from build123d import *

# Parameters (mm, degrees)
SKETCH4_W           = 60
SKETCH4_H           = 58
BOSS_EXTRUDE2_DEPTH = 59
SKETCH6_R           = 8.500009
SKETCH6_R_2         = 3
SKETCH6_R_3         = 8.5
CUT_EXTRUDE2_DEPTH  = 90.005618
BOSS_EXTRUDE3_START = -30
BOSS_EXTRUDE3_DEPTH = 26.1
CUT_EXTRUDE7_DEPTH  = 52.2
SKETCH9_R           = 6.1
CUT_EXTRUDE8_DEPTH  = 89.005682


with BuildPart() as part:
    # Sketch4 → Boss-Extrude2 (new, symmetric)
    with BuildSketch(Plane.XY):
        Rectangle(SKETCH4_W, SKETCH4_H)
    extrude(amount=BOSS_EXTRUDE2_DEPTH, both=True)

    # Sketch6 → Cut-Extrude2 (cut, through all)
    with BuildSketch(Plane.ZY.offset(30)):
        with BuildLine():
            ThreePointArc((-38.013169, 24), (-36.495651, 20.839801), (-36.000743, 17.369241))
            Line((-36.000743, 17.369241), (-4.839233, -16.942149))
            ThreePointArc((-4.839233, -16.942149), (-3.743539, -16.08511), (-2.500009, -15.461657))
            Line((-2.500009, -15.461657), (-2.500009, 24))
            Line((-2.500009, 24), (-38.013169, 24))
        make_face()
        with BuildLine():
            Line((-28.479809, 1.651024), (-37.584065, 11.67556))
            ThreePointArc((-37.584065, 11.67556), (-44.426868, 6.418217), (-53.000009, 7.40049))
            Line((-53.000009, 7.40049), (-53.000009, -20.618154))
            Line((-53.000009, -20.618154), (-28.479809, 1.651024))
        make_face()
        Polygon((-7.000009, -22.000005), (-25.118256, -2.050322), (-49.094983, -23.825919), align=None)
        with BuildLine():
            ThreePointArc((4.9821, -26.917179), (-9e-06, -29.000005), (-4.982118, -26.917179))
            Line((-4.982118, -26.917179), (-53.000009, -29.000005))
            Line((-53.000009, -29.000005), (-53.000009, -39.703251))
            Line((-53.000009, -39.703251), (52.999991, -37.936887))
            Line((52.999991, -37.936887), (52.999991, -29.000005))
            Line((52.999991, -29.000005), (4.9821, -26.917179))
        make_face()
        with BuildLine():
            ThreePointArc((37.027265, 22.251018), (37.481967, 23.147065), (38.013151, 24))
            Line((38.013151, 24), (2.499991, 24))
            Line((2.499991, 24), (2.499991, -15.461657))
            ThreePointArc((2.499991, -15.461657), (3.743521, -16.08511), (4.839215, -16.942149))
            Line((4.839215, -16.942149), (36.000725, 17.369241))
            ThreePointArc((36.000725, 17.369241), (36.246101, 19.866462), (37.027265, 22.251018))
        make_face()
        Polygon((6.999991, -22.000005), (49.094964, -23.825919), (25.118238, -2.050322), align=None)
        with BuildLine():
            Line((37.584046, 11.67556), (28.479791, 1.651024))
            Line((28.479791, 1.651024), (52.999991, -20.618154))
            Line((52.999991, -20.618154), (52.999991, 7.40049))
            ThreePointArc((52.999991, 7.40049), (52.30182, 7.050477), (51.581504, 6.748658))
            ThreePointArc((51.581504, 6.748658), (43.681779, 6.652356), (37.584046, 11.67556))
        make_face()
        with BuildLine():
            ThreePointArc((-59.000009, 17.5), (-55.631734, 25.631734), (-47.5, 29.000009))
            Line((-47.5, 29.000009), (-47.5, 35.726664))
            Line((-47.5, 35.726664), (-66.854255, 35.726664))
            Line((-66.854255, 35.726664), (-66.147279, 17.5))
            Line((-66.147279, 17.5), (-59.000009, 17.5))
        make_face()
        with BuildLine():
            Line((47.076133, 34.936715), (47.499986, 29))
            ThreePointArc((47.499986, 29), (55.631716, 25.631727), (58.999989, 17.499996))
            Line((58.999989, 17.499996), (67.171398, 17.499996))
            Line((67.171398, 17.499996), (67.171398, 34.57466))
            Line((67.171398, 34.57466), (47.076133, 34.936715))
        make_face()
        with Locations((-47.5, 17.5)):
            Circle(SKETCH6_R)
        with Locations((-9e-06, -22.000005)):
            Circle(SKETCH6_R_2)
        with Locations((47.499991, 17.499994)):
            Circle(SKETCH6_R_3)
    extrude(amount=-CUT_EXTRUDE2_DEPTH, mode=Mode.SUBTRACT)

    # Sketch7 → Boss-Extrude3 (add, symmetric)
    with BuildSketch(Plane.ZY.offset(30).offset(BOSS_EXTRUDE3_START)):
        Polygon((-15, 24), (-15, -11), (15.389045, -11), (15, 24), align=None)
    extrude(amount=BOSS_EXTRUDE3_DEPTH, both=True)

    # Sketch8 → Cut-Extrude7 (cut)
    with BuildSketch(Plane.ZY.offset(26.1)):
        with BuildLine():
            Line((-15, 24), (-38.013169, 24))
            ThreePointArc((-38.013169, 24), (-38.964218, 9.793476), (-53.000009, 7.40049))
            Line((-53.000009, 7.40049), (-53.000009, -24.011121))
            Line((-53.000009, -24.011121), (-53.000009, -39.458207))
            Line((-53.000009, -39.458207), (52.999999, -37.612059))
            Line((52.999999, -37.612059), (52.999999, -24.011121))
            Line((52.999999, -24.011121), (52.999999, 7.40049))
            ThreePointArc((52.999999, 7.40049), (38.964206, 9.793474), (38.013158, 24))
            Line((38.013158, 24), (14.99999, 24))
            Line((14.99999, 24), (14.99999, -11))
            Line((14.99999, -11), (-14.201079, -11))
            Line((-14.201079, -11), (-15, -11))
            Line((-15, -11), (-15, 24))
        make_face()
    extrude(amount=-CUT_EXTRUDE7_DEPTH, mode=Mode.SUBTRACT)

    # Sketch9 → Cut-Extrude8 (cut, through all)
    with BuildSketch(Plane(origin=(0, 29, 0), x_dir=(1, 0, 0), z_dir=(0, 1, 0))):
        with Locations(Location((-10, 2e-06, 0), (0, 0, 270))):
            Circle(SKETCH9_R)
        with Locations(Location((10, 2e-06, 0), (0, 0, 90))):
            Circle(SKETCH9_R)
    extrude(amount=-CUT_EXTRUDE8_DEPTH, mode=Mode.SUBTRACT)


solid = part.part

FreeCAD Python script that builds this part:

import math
import FreeCAD as App
import Part
import Sketcher
from FreeCAD import Vector
Q = App.Units.Quantity


def add_polygon(sketch, points):
    """Adds a closed chain of lines whose ends are joined by coincident constraints."""
    first, n = sketch.GeometryCount, len(points)
    for a, b in zip(points, points[1:] + points[:1]):
        sketch.addGeometry(Part.LineSegment(App.Vector(*a, 0), App.Vector(*b, 0)), False)
    for i in range(n):
        sketch.addConstraint(Sketcher.Constraint("Coincident", first + i, 2, first + (i + 1) % n, 1))

doc = App.newDocument("Part")
params = doc.addObject("Spreadsheet::Sheet", "Params")
for row, (alias, value) in enumerate([
    ("sketch1_width", "60 mm"),
    ("sketch1_height", "58 mm"),
    ("pad1_length", "118 mm"),
    ("sketch2_diameter", "6 mm"),
    ("sketch2_diameter2", "17 mm"),
    ("sketch2_radius", "11.499999 mm"),
    ("sketch2_radius2", "11.500002 mm"),
    ("sketch2_radius3", "11.499998 mm"),
    ("sketch3_width", "35 mm"),
    ("sketch3_height", "30 mm"),
    ("pad2_length", "52.2 mm"),
    ("sketch4_width", "35 mm"),
    ("pocket2_length", "52.2 mm"),
    ("sketch5_diameter", "12.2 mm"),
], start=1):
    params.set(f"A{row}", alias)
    params.set(f"B{row}", "=" + value)
    params.setAlias(f"B{row}", alias)

body = doc.addObject("PartDesign::Body", "Body")

# Sketch on XY plane
sketch1 = body.newObject("Sketcher::SketchObject", "Sketch")
sketch1.AttachmentSupport = (doc.getObject("XY_Plane"), [""])
sketch1.MapMode = "FlatFace"
add_polygon(sketch1, [(-30, 29), (-30, -29), (30, -29), (30, 29)])  # lines 0-3
sketch1.addConstraint([
    Sketcher.Constraint("Vertical", 0),
    Sketcher.Constraint("Horizontal", 1),
    Sketcher.Constraint("Vertical", 2),
    Sketcher.Constraint("Horizontal", 3),
    Sketcher.Constraint("Symmetric", 0, 2, 2, 2, -1, 1),
    Sketcher.Constraint("DistanceX", 1, 1, 1, 2, Q("60 mm")),
    Sketcher.Constraint("DistanceY", 0, 2, 0, 1, Q("58 mm")),
])
sketch1.setExpression("Constraints[9]", "Params.sketch1_width")
sketch1.setExpression("Constraints[10]", "Params.sketch1_height")
pad1 = body.newObject("PartDesign::Pad", "Pad")
pad1.Profile = sketch1
pad1.setExpression("Length", "Params.pad1_length")
pad1.Midplane = True

# Sketch on YZ plane
sketch2 = body.newObject("Sketcher::SketchObject", "Sketch001")
sketch2.AttachmentSupport = (doc.getObject("YZ_Plane"), [""])
sketch2.MapMode = "FlatFace"
sketch2.AttachmentOffset = App.Placement(Vector(0, 0, -30), App.Rotation())
sketch2.addGeometry(Part.ArcOfCircle(Part.Circle(Vector(17.499992, -47.500015, 0), Vector(0, 0, 1), 11.500016), math.radians(55.582615), math.radians(90.651445)), False)  # 0
sketch2.addGeometry(Part.LineSegment(Vector(17.369241, -36.000743, 0), Vector(-16.942149, -4.839233, 0)), False)  # 1
sketch2.addGeometry(Part.ArcOfCircle(Part.Circle(Vector(-21.999992, -0.000018, 0), Vector(0, 0, 1), 6.999984), math.radians(-43.734533), math.radians(-20.924806)), False)  # 2
sketch2.addGeometry(Part.LineSegment(Vector(-15.461657, -2.500009, 0), Vector(24, -2.500009, 0)), False)  # 3
sketch2.addGeometry(Part.LineSegment(Vector(24, -2.500009, 0), Vector(24, -38.013169, 0)), False)  # 4
sketch2.addGeometry(Part.LineSegment(Vector(1.651024, -28.479809, 0), Vector(11.67556, -37.584065, 0)), False)  # 5
sketch2.addGeometry(Part.ArcOfCircle(Part.Circle(Vector(17.499994, -47.500009, 0), Vector(0, 0, 1), 11.499999), math.radians(120.429154), math.radians(208.571879)), False)  # 6
sketch2.addGeometry(Part.LineSegment(Vector(7.40049, -53.000009, 0), Vector(-20.618154, -53.000009, 0)), False)  # 7
sketch2.addGeometry(Part.LineSegment(Vector(-20.618154, -53.000009, 0), Vector(1.651024, -28.479809, 0)), False)  # 8
add_polygon(sketch2, [(-22.000005, -7.000009), (-2.050322, -25.118256), (-23.825919, -49.094983)])  # lines 9-11
sketch2.addGeometry(Part.ArcOfCircle(Part.Circle(Vector(-22.000003, -0.000009, 0), Vector(0, 0, 1), 7.000002), math.radians(134.624184), math.radians(225.375816)), False)  # 12
sketch2.addGeometry(Part.LineSegment(Vector(-26.917179, -4.982118, 0), Vector(-29.000005, -53.000009, 0)), False)  # 13
sketch2.addGeometry(Part.LineSegment(Vector(-29.000005, -53.000009, 0), Vector(-39.703251, -53.000009, 0)), False)  # 14
sketch2.addGeometry(Part.LineSegment(Vector(-39.703251, -53.000009, 0), Vector(-37.936887, 52.999991, 0)), False)  # 15
sketch2.addGeometry(Part.LineSegment(Vector(-37.936887, 52.999991, 0), Vector(-29.000005, 52.999991, 0)), False)  # 16
sketch2.addGeometry(Part.LineSegment(Vector(-29.000005, 52.999991, 0), Vector(-26.917179, 4.9821, 0)), False)  # 17
sketch2.addGeometry(Part.ArcOfCircle(Part.Circle(Vector(17.499996, 47.499983, 0), Vector(0, 0, 1), 11.500002), math.radians(-65.598248), math.radians(-55.582593)), False)  # 18
sketch2.addGeometry(Part.LineSegment(Vector(24, 38.013151, 0), Vector(24, 2.499991, 0)), False)  # 19
sketch2.addGeometry(Part.LineSegment(Vector(24, 2.499991, 0), Vector(-15.461657, 2.499991, 0)), False)  # 20
sketch2.addGeometry(Part.ArcOfCircle(Part.Circle(Vector(-21.999992, 0, 0), Vector(0, 0, 1), 6.999984), math.radians(20.924806), math.radians(43.734533)), False)  # 21
sketch2.addGeometry(Part.LineSegment(Vector(-16.942149, 4.839215, 0), Vector(17.369241, 36.000725, 0)), False)  # 22
sketch2.addGeometry(Part.ArcOfCircle(Part.Circle(Vector(17.499992, 47.500002, 0), Vector(0, 0, 1), 11.50002), math.radians(-90.651447), math.radians(-65.598268)), False)  # 23
add_polygon(sketch2, [(-22.000005, 6.999991), (-23.825919, 49.094964), (-2.050322, 25.118238)])  # lines 24-26
sketch2.addGeometry(Part.LineSegment(Vector(11.67556, 37.584046, 0), Vector(1.651024, 28.479791, 0)), False)  # 27
sketch2.addGeometry(Part.LineSegment(Vector(1.651024, 28.479791, 0), Vector(-20.618154, 52.999991, 0)), False)  # 28
sketch2.addGeometry(Part.LineSegment(Vector(-20.618154, 52.999991, 0), Vector(7.40049, 52.999991, 0)), False)  # 29
sketch2.addGeometry(Part.ArcOfCircle(Part.Circle(Vector(17.500172, 47.499912, 0), Vector(0, 0, 1), 11.500193), math.radians(151.428196), math.radians(159.211759)), False)  # 30
sketch2.addGeometry(Part.ArcOfCircle(Part.Circle(Vector(17.499993, 47.49999, 0), Vector(0, 0, 1), 11.499998), math.radians(159.211806), math.radians(239.570851)), False)  # 31
sketch2.addGeometry(Part.ArcOfCircle(Part.Circle(Vector(17.499999, -47.499999, 0), Vector(0, 0, 1), 11.50001), math.radians(-89.999994), math.radians(-0.000006)), False)  # 32
sketch2.addGeometry(Part.LineSegment(Vector(29.000009, -47.5, 0), Vector(35.726664, -47.5, 0)), False)  # 33
sketch2.addGeometry(Part.LineSegment(Vector(35.726664, -47.5, 0), Vector(35.726664, -66.854255, 0)), False)  # 34
sketch2.addGeometry(Part.LineSegment(Vector(35.726664, -66.854255, 0), Vector(17.5, -66.147279, 0)), False)  # 35
sketch2.addGeometry(Part.LineSegment(Vector(17.5, -66.147279, 0), Vector(17.5, -59.000009, 0)), False)  # 36
sketch2.addGeometry(Part.LineSegment(Vector(34.936715, 47.076133, 0), Vector(29, 47.499986, 0)), False)  # 37
sketch2.addGeometry(Part.ArcOfCircle(Part.Circle(Vector(17.499997, 47.499986, 0), Vector(0, 0, 1), 11.500003), math.radians(0.000002), math.radians(90.000003)), False)  # 38
sketch2.addGeometry(Part.LineSegment(Vector(17.499996, 58.999989, 0), Vector(17.499996, 67.171398, 0)), False)  # 39
sketch2.addGeometry(Part.LineSegment(Vector(17.499996, 67.171398, 0), Vector(34.57466, 67.171398, 0)), False)  # 40
sketch2.addGeometry(Part.LineSegment(Vector(34.57466, 67.171398, 0), Vector(34.936715, 47.076133, 0)), False)  # 41
sketch2.addGeometry(Part.Circle(Vector(17.5, -47.5, 0), Vector(0, 0, 1), 8.500009), False)  # 42
sketch2.addGeometry(Part.Circle(Vector(-22.000005, -0.000009, 0), Vector(0, 0, 1), 3), False)  # 43
sketch2.addGeometry(Part.Circle(Vector(17.499994, 47.499991, 0), Vector(0, 0, 1), 8.5), False)  # 44
sketch2.addConstraint([
    Sketcher.Constraint("Coincident", 0, 2, 1, 1),
    Sketcher.Constraint("Coincident", 1, 2, 2, 1),
    Sketcher.Constraint("Coincident", 2, 2, 3, 1),
    Sketcher.Constraint("Coincident", 3, 2, 4, 1),
    Sketcher.Constraint("Coincident", 4, 2, 0, 1),
    Sketcher.Constraint("Coincident", 5, 2, 6, 1),
    Sketcher.Constraint("Coincident", 6, 2, 7, 1),
    Sketcher.Constraint("Coincident", 7, 2, 8, 1),
    Sketcher.Constraint("Coincident", 8, 2, 5, 1),
    Sketcher.Constraint("Coincident", 12, 2, 13, 1),
    Sketcher.Constraint("Coincident", 13, 2, 14, 1),
    Sketcher.Constraint("Coincident", 14, 2, 15, 1),
    Sketcher.Constraint("Coincident", 15, 2, 16, 1),
    Sketcher.Constraint("Coincident", 16, 2, 17, 1),
    Sketcher.Constraint("Coincident", 17, 2, 12, 1),
    Sketcher.Constraint("Coincident", 18, 2, 19, 1),
    Sketcher.Constraint("Coincident", 19, 2, 20, 1),
    Sketcher.Constraint("Coincident", 20, 2, 21, 1),
    Sketcher.Constraint("Coincident", 21, 2, 22, 1),
    Sketcher.Constraint("Coincident", 22, 2, 23, 1),
    Sketcher.Constraint("Coincident", 23, 2, 18, 1),
    Sketcher.Constraint("Coincident", 27, 2, 28, 1),
    Sketcher.Constraint("Coincident", 28, 2, 29, 1),
    Sketcher.Constraint("Coincident", 29, 2, 30, 1),
    Sketcher.Constraint("Coincident", 30, 2, 31, 1),
    Sketcher.Constraint("Coincident", 31, 2, 27, 1),
    Sketcher.Constraint("Coincident", 32, 2, 33, 1),
    Sketcher.Constraint("Coincident", 33, 2, 34, 1),
    Sketcher.Constraint("Coincident", 34, 2, 35, 1),
    Sketcher.Constraint("Coincident", 35, 2, 36, 1),
    Sketcher.Constraint("Coincident", 36, 2, 32, 1),
    Sketcher.Constraint("Coincident", 37, 2, 38, 1),
    Sketcher.Constraint("Coincident", 38, 2, 39, 1),
    Sketcher.Constraint("Coincident", 39, 2, 40, 1),
    Sketcher.Constraint("Coincident", 40, 2, 41, 1),
    Sketcher.Constraint("Coincident", 41, 2, 37, 1),
    Sketcher.Constraint("Horizontal", 3),
    Sketcher.Constraint("Vertical", 4),
    Sketcher.Constraint("Horizontal", 7),
    Sketcher.Constraint("Horizontal", 14),
    Sketcher.Constraint("Horizontal", 16),
    Sketcher.Constraint("Vertical", 19),
    Sketcher.Constraint("Horizontal", 20),
    Sketcher.Constraint("Horizontal", 29),
    Sketcher.Constraint("Horizontal", 33),
    Sketcher.Constraint("Vertical", 34),
    Sketcher.Constraint("Vertical", 36),
    Sketcher.Constraint("Vertical", 39),
    Sketcher.Constraint("Horizontal", 40),
    Sketcher.Constraint("Coincident", 6, 3, 0, 3),
    Sketcher.Constraint("Coincident", 31, 3, 18, 3),
    Sketcher.Constraint("Coincident", 38, 3, 18, 3),
    Sketcher.Constraint("Coincident", 42, 3, 32, 3),
    Sketcher.Constraint("Coincident", 43, 3, 12, 3),
    Sketcher.Constraint("Coincident", 44, 3, 18, 3),
    Sketcher.Constraint("PointOnObject", 21, 3, -1),
    Sketcher.Constraint("Diameter", 43, Q("6 mm")),
    Sketcher.Constraint("Diameter", 44, Q("17 mm")),
    Sketcher.Constraint("Radius", 6, Q("11.499999 mm")),
    Sketcher.Constraint("Radius", 18, Q("11.500002 mm")),
    Sketcher.Constraint("Radius", 31, Q("11.499998 mm")),
    Sketcher.Constraint("DistanceX", -1, 1, 3, 2, Q("24 mm")),
    Sketcher.Constraint("DistanceX", -1, 1, 18, 2, Q("24 mm")),
    Sketcher.Constraint("DistanceX", -1, 1, 37, 2, Q("29 mm")),
    Sketcher.Constraint("DistanceY", 0, 3, 18, 3, Q("94.999999 mm")),
    Sketcher.Constraint("DistanceY", 11, 2, 43, 3, Q("7 mm")),
    Sketcher.Constraint("DistanceY", 43, 3, 15, 2, Q("53 mm")),
    Sketcher.Constraint("DistanceY", 3, 2, 19, 2, Q("5 mm")),
    Sketcher.Constraint("DistanceY", 43, 3, 26, 2, Q("7 mm")),
    Sketcher.Constraint("DistanceY", -1, 1, 23, 3, Q("47.500002 mm")),
    Sketcher.Constraint("DistanceX", -1, 1, 32, 3, Q("17.499999 mm")),
    Sketcher.Constraint("DistanceY", 32, 3, -1, 1, Q("47.499999 mm")),
    Sketcher.Constraint("DistanceY", 32, 2, -1, 1, Q("47.5 mm")),
    Sketcher.Constraint("DistanceX", -1, 1, 35, 2, Q("17.5 mm")),
    Sketcher.Constraint("DistanceY", 6, 3, 12, 3, Q("47.5 mm")),
    Sketcher.Constraint("DistanceY", 2, 3, 18, 3, Q("47.500001 mm")),
    Sketcher.Constraint("DistanceX", 12, 3, 18, 3, Q("39.499999 mm")),
    Sketcher.Constraint("DistanceX", 12, 3, 32, 3, Q("39.500001 mm")),
    Sketcher.Constraint("DistanceY", 2, 2, 12, 3, Q("2.5 mm")),
    Sketcher.Constraint("DistanceY", 6, 2, 6, 3, Q("5.5 mm")),
    Sketcher.Constraint("DistanceX", 16, 2, 44, 3, Q("46.499999 mm")),
    Sketcher.Constraint("DistanceY", 31, 3, 29, 2, Q("5.500001 mm")),
    Sketcher.Constraint("DistanceY", 36, 2, 6, 3, Q("11.5 mm")),
    Sketcher.Constraint("Diameter", 42, Q("17.000018 mm")),
    Sketcher.Constraint("Radius", 23, Q("11.50002 mm")),
    Sketcher.Constraint("Radius", 32, Q("11.50001 mm")),
    Sketcher.Constraint("Radius", 0, Q("11.500016 mm")),
    Sketcher.Constraint("Radius", 2, Q("6.999984 mm")),
    Sketcher.Constraint("Radius", 12, Q("7.000002 mm")),
    Sketcher.Constraint("Radius", 21, Q("6.999984 mm")),
    Sketcher.Constraint("Radius", 30, Q("11.500193 mm")),
    Sketcher.Constraint("DistanceX", 16, 1, 16, 2, Q("8.936882 mm")),
    Sketcher.Constraint("DistanceY", 4, 2, 4, 1, Q("35.51316 mm")),
    Sketcher.Constraint("DistanceY", 36, 1, 36, 2, Q("7.14727 mm")),
    Sketcher.Constraint("DistanceY", 39, 1, 39, 2, Q("8.171409 mm")),
    Sketcher.Constraint("DistanceY", -1, 1, 17, 2, Q("4.9821 mm")),
    Sketcher.Constraint("DistanceY", 12, 2, 2, 3, Q("4.9821 mm")),
    Sketcher.Constraint("DistanceY", 13, 2, 8, 2, Q("24.5202 mm")),
    Sketcher.Constraint("DistanceY", 8, 2, 19, 2, Q("30.9798 mm")),
    Sketcher.Constraint("DistanceY", 27, 2, 28, 2, Q("24.5202 mm")),
    Sketcher.Constraint("Distance", 35, Q("18.24037 mm")),
    Sketcher.Constraint("DistanceX", 3, 1, 3, 2, Q("39.461657 mm")),
    Sketcher.Constraint("DistanceX", 7, 2, 7, 1, Q("28.018644 mm")),
    Sketcher.Constraint("DistanceX", 14, 2, 14, 1, Q("10.703246 mm")),
    Sketcher.Constraint("DistanceX", 20, 2, 20, 1, Q("39.461657 mm")),
    Sketcher.Constraint("DistanceX", 29, 1, 29, 2, Q("28.018644 mm")),
    Sketcher.Constraint("DistanceX", 33, 1, 33, 2, Q("6.726655 mm")),
    Sketcher.Constraint("DistanceX", 40, 1, 40, 2, Q("17.074664 mm")),
    Sketcher.Constraint("DistanceX", -1, 1, 30, 3, Q("17.500172 mm")),
    Sketcher.Constraint("DistanceX", -1, 1, 0, 2, Q("17.369241 mm")),
    Sketcher.Constraint("DistanceX", 1, 2, -1, 1, Q("16.942149 mm")),
    Sketcher.Constraint("DistanceX", -1, 1, 5, 2, Q("11.67556 mm")),
    Sketcher.Constraint("DistanceX", 9, 2, -1, 1, Q("2.050322 mm")),
    Sketcher.Constraint("DistanceX", 10, 2, -1, 1, Q("23.825919 mm")),
    Sketcher.Constraint("DistanceX", 14, 2, -1, 1, Q("39.703251 mm")),
    Sketcher.Constraint("DistanceX", 21, 2, -1, 1, Q("16.942149 mm")),
    Sketcher.Constraint("DistanceX", -1, 1, 22, 2, Q("17.369241 mm")),
    Sketcher.Constraint("DistanceX", 24, 2, -1, 1, Q("23.825919 mm")),
    Sketcher.Constraint("DistanceX", 25, 2, -1, 1, Q("2.050322 mm")),
    Sketcher.Constraint("DistanceY", -1, 1, 25, 2, Q("25.118238 mm")),
    Sketcher.Constraint("DistanceX", -1, 1, 31, 2, Q("11.67556 mm")),
    Sketcher.Constraint("DistanceX", -1, 1, 40, 2, Q("34.57466 mm")),
    Sketcher.Constraint("DistanceY", 5, 2, 9, 2, Q("12.465809 mm")),
    Sketcher.Constraint("DistanceX", 13, 2, 8, 2, Q("30.651029 mm")),
    Sketcher.Constraint("DistanceY", 22, 2, 23, 2, Q("1.02654 mm")),
    Sketcher.Constraint("DistanceX", 28, 2, 27, 2, Q("22.269178 mm")),
    Sketcher.Constraint("DistanceX", 30, 2, 38, 3, Q("10.751339 mm")),
    Sketcher.Constraint("DistanceY", 37, 2, 40, 2, Q("19.671412 mm")),
    Sketcher.Constraint("DistanceY", 41, 2, 30, 3, Q("0.423779 mm")),
    Sketcher.Constraint("DistanceX", 38, 3, 41, 2, Q("17.436718 mm")),
    Sketcher.Constraint("Distance", 9, Q("26.949225 mm")),
    Sketcher.Constraint("Distance", 10, Q("32.389197 mm")),
    Sketcher.Constraint("Distance", 24, Q("42.134555 mm")),
    Sketcher.Constraint("Distance", 25, Q("32.389196 mm")),
])
sketch2.setExpression("Constraints[62]", "Params.sketch2_diameter")
sketch2.setExpression("Constraints[63]", "Params.sketch2_diameter2")
sketch2.setExpression("Constraints[64]", "Params.sketch2_radius")
sketch2.setExpression("Constraints[65]", "Params.sketch2_radius2")
sketch2.setExpression("Constraints[66]", "Params.sketch2_radius3")
pocket1 = body.newObject("PartDesign::Pocket", "Pocket")
pocket1.Profile = sketch2
pocket1.Type = "ThroughAll"
pocket1.Reversed = True

# Sketch on YZ plane
sketch3 = body.newObject("Sketcher::SketchObject", "Sketch002")
sketch3.AttachmentSupport = (doc.getObject("YZ_Plane"), [""])
sketch3.MapMode = "FlatFace"
add_polygon(sketch3, [(24, -15), (-11, -15), (-11, 15), (24, 15)])  # lines 0-3
sketch3.addConstraint([
    Sketcher.Constraint("Horizontal", 0),
    Sketcher.Constraint("Vertical", 1),
    Sketcher.Constraint("Vertical", 3),
    Sketcher.Constraint("DistanceX", 0, 2, 0, 1, Q("35 mm")),
    Sketcher.Constraint("DistanceY", 3, 2, 3, 1, Q("30 mm")),
    Sketcher.Constraint("DistanceX", 0, 2, -1, 1, Q("11 mm")),
    Sketcher.Constraint("DistanceY", 0, 2, -1, 1, Q("15 mm")),
    Sketcher.Constraint("DistanceY", 1, 1, 1, 2, Q("30.389045 mm")),
])
sketch3.setExpression("Constraints[7]", "Params.sketch3_width")
sketch3.setExpression("Constraints[8]", "Params.sketch3_height")
pad2 = body.newObject("PartDesign::Pad", "Pad001")
pad2.Profile = sketch3
pad2.setExpression("Length", "Params.pad2_length")
pad2.Midplane = True

# Sketch on YZ plane
sketch4 = body.newObject("Sketcher::SketchObject", "Sketch003")
sketch4.AttachmentSupport = (doc.getObject("YZ_Plane"), [""])
sketch4.MapMode = "FlatFace"
sketch4.AttachmentOffset = App.Placement(Vector(0, 0, -26.1), App.Rotation())
sketch4.addGeometry([
    Part.LineSegment(Vector(24, -15, 0), Vector(24, -38, 0)),  # 0
    Part.ArcOfCircle(Part.Circle(Vector(17, -48, 0), Vector(0, 0, 1), 12), math.radians(56), math.radians(209)),  # 1
    Part.LineSegment(Vector(7, -53, 0), Vector(-39, -53, 0)),  # 2
    Part.LineSegment(Vector(-39, -53, 0), Vector(-38, 53, 0)),  # 3
    Part.LineSegment(Vector(-38, 53, 0), Vector(7, 53, 0)),  # 4
    Part.ArcOfCircle(Part.Circle(Vector(17, 47, 0), Vector(0, 0, 1), 12), math.radians(151), math.radians(304)),  # 5
    Part.LineSegment(Vector(24, 38, 0), Vector(24, 15, 0)),  # 6
    Part.LineSegment(Vector(24, 15, 0), Vector(-11, 15, 0)),  # 7
    Part.LineSegment(Vector(-11, 15, 0), Vector(-11, -15, 0)),  # 8
    Part.LineSegment(Vector(-11, -15, 0), Vector(24, -15, 0)),  # 9
], False)
sketch4.addConstraint([
    Sketcher.Constraint("Coincident", 0, 2, 1, 1),
    Sketcher.Constraint("Coincident", 1, 2, 2, 1),
    Sketcher.Constraint("Coincident", 2, 2, 3, 1),
    Sketcher.Constraint("Coincident", 3, 2, 4, 1),
    Sketcher.Constraint("Coincident", 4, 2, 5, 1),
    Sketcher.Constraint("Coincident", 5, 2, 6, 1),
    Sketcher.Constraint("Coincident", 6, 2, 7, 1),
    Sketcher.Constraint("Coincident", 7, 2, 8, 1),
    Sketcher.Constraint("Coincident", 8, 2, 9, 1),
    Sketcher.Constraint("Coincident", 9, 2, 0, 1),
    Sketcher.Constraint("Vertical", 0),
    Sketcher.Constraint("Horizontal", 2),
    Sketcher.Constraint("Horizontal", 4),
    Sketcher.Constraint("Vertical", 6),
    Sketcher.Constraint("Horizontal", 7),
    Sketcher.Constraint("Vertical", 8),
    Sketcher.Constraint("Horizontal", 9),
    Sketcher.Constraint("Equal", 1, 5),
    Sketcher.Constraint("Symmetric", 6, 2, 9, 2, -1),
    Sketcher.Constraint("Vertical", 1, 3, 5, 3),
    Sketcher.Constraint("Vertical", 1, 2, 4, 2),
    Sketcher.Constraint("Equal", 0, 6),
    Sketcher.Constraint("DistanceX", 7, 2, 7, 1, Q("35 mm")),
    Sketcher.Constraint("DistanceX", -1, 1, 0, 2, Q("24 mm")),
    Sketcher.Constraint("DistanceY", -1, 1, 3, 2, Q("52.999999 mm")),
    Sketcher.Constraint("DistanceY", 8, 2, -1, 1, Q("15 mm")),
    Sketcher.Constraint("DistanceY", 1, 2, 5, 3, Q("100.5 mm")),
    Sketcher.Constraint("Radius", 1, Q("11.500003 mm")),
    Sketcher.Constraint("DistanceX", 4, 1, 4, 2, Q("45.012549 mm")),
    Sketcher.Constraint("DistanceY", 0, 2, 0, 1, Q("23.013169 mm")),
    Sketcher.Constraint("DistanceX", 2, 2, 5, 3, Q("56.958201 mm")),
])
sketch4.setExpression("Constraints[22]", "Params.sketch4_width")
pocket2 = body.newObject("PartDesign::Pocket", "Pocket001")
pocket2.Profile = sketch4
pocket2.setExpression("Length", "Params.pocket2_length")
pocket2.Reversed = True

# Sketch on XZ plane
sketch5 = body.newObject("Sketcher::SketchObject", "Sketch004")
sketch5.AttachmentSupport = (doc.getObject("XZ_Plane"), [""])
sketch5.MapMode = "FlatFace"
sketch5.AttachmentOffset = App.Placement(Vector(0, 0, -29), App.Rotation())
sketch5.addGeometry([
    Part.Circle(Vector(-10, 0, 0), Vector(0, 0, 1), 6),
    Part.Circle(Vector(10, 0, 0), Vector(0, 0, 1), 6),
], False)
sketch5.addConstraint([
    Sketcher.Constraint("Equal", 0, 1),
    Sketcher.Constraint("Symmetric", 0, 3, 1, 3, -1, 1),
    Sketcher.Constraint("Horizontal", 0, 3, 1, 3),
    Sketcher.Constraint("Diameter", 0, Q("12.2 mm")),
    Sketcher.Constraint("DistanceX", 0, 3, -1, 1, Q("10 mm")),
])
sketch5.setExpression("Constraints[3]", "Params.sketch5_diameter")
pocket3 = body.newObject("PartDesign::Pocket", "Pocket002")
pocket3.Profile = sketch5
pocket3.Type = "ThroughAll"
pocket3.Reversed = True

doc.recompute()
